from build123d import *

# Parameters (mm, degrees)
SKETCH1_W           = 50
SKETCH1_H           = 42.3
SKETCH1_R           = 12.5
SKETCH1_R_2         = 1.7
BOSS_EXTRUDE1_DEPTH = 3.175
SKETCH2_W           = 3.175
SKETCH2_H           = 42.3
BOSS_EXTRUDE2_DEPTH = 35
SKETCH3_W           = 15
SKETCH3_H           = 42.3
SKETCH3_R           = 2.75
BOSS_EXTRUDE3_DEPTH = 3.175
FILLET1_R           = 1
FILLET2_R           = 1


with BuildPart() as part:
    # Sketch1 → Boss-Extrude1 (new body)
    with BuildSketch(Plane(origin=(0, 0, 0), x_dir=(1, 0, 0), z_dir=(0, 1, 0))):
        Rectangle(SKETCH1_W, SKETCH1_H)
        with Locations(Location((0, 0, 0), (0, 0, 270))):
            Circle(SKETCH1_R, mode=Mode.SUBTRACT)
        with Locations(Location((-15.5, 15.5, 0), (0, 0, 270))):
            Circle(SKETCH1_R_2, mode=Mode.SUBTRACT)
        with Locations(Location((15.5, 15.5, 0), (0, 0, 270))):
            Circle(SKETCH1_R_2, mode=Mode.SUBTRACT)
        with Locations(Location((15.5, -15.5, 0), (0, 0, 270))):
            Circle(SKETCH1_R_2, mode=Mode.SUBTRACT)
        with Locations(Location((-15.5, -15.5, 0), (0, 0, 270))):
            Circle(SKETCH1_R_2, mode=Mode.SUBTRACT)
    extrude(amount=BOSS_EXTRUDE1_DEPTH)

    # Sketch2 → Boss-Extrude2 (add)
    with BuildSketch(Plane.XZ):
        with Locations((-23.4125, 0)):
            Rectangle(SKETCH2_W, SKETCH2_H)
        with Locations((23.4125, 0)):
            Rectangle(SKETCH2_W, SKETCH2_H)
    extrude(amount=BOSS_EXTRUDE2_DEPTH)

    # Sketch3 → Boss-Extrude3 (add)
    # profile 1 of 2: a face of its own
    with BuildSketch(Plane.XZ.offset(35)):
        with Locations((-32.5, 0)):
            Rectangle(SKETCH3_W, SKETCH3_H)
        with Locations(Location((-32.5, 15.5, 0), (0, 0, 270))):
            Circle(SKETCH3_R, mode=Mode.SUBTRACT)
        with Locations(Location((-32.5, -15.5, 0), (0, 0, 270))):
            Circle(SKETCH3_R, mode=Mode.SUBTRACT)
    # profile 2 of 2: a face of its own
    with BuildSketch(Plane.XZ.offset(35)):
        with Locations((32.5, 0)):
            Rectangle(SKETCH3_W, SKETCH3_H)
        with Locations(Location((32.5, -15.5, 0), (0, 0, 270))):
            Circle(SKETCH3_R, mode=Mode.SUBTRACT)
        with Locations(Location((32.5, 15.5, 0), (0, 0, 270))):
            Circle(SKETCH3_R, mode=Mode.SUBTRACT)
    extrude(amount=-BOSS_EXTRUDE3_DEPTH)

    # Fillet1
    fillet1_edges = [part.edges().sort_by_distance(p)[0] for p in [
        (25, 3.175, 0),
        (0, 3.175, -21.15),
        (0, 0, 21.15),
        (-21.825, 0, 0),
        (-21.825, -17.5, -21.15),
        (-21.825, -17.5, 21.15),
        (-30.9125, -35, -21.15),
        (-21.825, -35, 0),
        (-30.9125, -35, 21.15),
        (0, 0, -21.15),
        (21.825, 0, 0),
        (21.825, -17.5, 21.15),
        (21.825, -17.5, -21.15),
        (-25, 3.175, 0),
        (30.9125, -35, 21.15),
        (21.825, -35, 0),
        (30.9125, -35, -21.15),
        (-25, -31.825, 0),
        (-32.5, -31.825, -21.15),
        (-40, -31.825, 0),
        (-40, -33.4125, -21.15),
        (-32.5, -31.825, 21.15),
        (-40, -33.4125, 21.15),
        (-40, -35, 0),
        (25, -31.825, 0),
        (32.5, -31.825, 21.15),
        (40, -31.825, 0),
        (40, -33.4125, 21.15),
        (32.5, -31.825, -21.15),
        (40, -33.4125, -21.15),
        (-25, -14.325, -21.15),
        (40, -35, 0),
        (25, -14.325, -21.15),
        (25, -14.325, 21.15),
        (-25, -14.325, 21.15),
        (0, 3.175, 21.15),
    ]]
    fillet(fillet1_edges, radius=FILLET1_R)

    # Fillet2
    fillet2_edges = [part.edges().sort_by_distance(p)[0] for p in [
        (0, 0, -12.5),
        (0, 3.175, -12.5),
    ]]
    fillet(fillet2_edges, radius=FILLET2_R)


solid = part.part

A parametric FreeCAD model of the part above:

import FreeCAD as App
import Part
import Sketcher


def edges_at(feature, points):
    """Names of the edges that pass closest to the given points."""
    edges = feature.Shape.Edges
    near = lambda p: min(range(len(edges)), key=lambda i: edges[i].distToShape(Part.Vertex(*p))[0])
    return sorted({f"Edge{near(p) + 1}" for p in points})


def add_polygon(sketch, points):
    """Adds a closed chain of lines whose ends are joined by coincident constraints."""
    first, n = sketch.GeometryCount, len(points)
    for a, b in zip(points, points[1:] + points[:1]):
        sketch.addGeometry(Part.LineSegment(App.Vector(*a, 0), App.Vector(*b, 0)), False)
    for i in range(n):
        sketch.addConstraint(Sketcher.Constraint("Coincident", first + i, 2, first + (i + 1) % n, 1))

doc = App.newDocument("Part")
params = doc.addObject("Spreadsheet::Sheet", "Params")
for row, (alias, value) in enumerate([
    ("sketch1_diameter", "25 mm"),
    ("sketch1_diameter2", "3.4 mm"),
    ("sketch1_width", "50 mm"),
    ("sketch1_height", "42.3 mm"),
    ("pad1_length", "3.175 mm"),
    ("sketch2_height", "42.3 mm"),
    ("pad2_length", "35 mm"),
    ("sketch3_diameter", "5.5 mm"),
    ("sketch3_width", "15 mm"),
    ("sketch3_height", "42.3 mm"),
    ("pad3_length", "3.175 mm"),
    ("fillet_radius", "1 mm"),
    ("fillet2_radius", "1 mm"),
], start=1):
    params.set(f"A{row}", alias)
    params.set(f"B{row}", "=" + value)
    params.setAlias(f"B{row}", alias)

body = doc.addObject("PartDesign::Body", "Body")

sketch1 = doc.addObject("Sketcher::SketchObject", "Sketch")
body.addObject(sketch1)
sketch1.AttachmentSupport = (doc.XZ_Plane, [""])
sketch1.MapMode = "FlatFace"
add_polygon(sketch1, [(-25, -21.15), (-25, 21.15), (25, 21.15), (25, -21.15)])
sketch1.addGeometry(Part.Circle(App.Vector(-15.5, 15.5, 0), App.Vector(0, 0, 1), 1.7), False)
sketch1.addGeometry(Part.Circle(App.Vector(15.5, 15.5, 0), App.Vector(0, 0, 1), 1.7), False)
sketch1.addGeometry(Part.Circle(App.Vector(-15.5, -15.5, 0), App.Vector(0, 0, 1), 1.7), False)
sketch1.addGeometry(Part.Circle(App.Vector(0, 0, 0), App.Vector(0, 0, 1), 12.5), False)
sketch1.addGeometry(Part.Circle(App.Vector(15.5, -15.5, 0), App.Vector(0, 0, 1), 1.7), False)
sketch1.addConstraint([
    Sketcher.Constraint("Vertical", 0),
    Sketcher.Constraint("Horizontal", 1),
    Sketcher.Constraint("Vertical", 2),
    Sketcher.Constraint("Horizontal", 3),
    Sketcher.Constraint("Coincident", 7, 3, -1, 1),
    Sketcher.Constraint("Equal", 4, 5),
    Sketcher.Constraint("Equal", 5, 6),
    Sketcher.Constraint("Equal", 6, 8),
    Sketcher.Constraint("Symmetric", 5, 3, 6, 3, -1, 1),
    Sketcher.Constraint("Symmetric", 4, 3, 8, 3, -1, 1),
    Sketcher.Constraint("Symmetric", 0, 2, 2, 2, -1, 1),
    Sketcher.Constraint("Symmetric", 4, 3, 5, 3, -2),
    Sketcher.Constraint("Diameter", 7, 25.0),
    Sketcher.Constraint("Diameter", 4, 3.4),
    Sketcher.Constraint("DistanceX", 1, 1, 1, 2, 50.0),
    Sketcher.Constraint("DistanceY", 0, 1, 0, 2, 42.3),
    Sketcher.Constraint("DistanceX", 4, 3, 5, 3, 31.0),
    Sketcher.Constraint("DistanceY", 6, 3, 4, 3, 31.0),
])
sketch1.setExpression("Constraints[16]", "Params.sketch1_diameter")
sketch1.setExpression("Constraints[17]", "Params.sketch1_diameter2")
sketch1.setExpression("Constraints[18]", "Params.sketch1_width")
sketch1.setExpression("Constraints[19]", "Params.sketch1_height")
pad1 = doc.addObject("PartDesign::Pad", "Pad")
body.addObject(pad1)
pad1.Profile = sketch1
pad1.setExpression("Length", "Params.pad1_length")
pad1.Reversed = True

sketch2 = doc.addObject("Sketcher::SketchObject", "Sketch001")
body.addObject(sketch2)
sketch2.AttachmentSupport = (doc.XZ_Plane, [""])
sketch2.MapMode = "FlatFace"
add_polygon(sketch2, [(-25, 21.15), (-25, -21.15), (-21.825, -21.15), (-21.825, 21.15)])
add_polygon(sketch2, [(21.825, 21.15), (21.825, -21.15), (25, -21.15), (25, 21.15)])
sketch2.addConstraint([
    Sketcher.Constraint("Vertical", 0),
    Sketcher.Constraint("Horizontal", 1),
    Sketcher.Constraint("Vertical", 2),
    Sketcher.Constraint("Horizontal", 3),
    Sketcher.Constraint("Vertical", 4),
    Sketcher.Constraint("Horizontal", 5),
    Sketcher.Constraint("Vertical", 6),
    Sketcher.Constraint("Horizontal", 7),
    Sketcher.Constraint("Symmetric", 2, 2, 4, 2, -1, 1),
    Sketcher.Constraint("Symmetric", 0, 2, 6, 2, -1, 1),
    Sketcher.Constraint("Horizontal", 1, 2, 4, 2),
    Sketcher.Constraint("DistanceY", 0, 2, 0, 1, 42.3),
    Sketcher.Constraint("DistanceX", 0, 2, -1, 1, 25.0),
    Sketcher.Constraint("DistanceX", 1, 1, 1, 2, 3.175),
])
sketch2.setExpression("Constraints[19]", "Params.sketch2_height")
pad2 = doc.addObject("PartDesign::Pad", "Pad001")
body.addObject(pad2)
pad2.Profile = sketch2
pad2.setExpression("Length", "Params.pad2_length")

sketch3 = doc.addObject("Sketcher::SketchObject", "Sketch002")
body.addObject(sketch3)
sketch3.AttachmentSupport = (doc.XZ_Plane, [""])
sketch3.MapMode = "FlatFace"
sketch3.AttachmentOffset = App.Placement(App.Vector(0, 0, 35), App.Rotation())
add_polygon(sketch3, [(-40, 21.15), (-40, -21.15), (-25, -21.15), (-25, 21.15)])
sketch3.addGeometry(Part.Circle(App.Vector(-32.5, -15.5, 0), App.Vector(0, 0, 1), 2.75), False)
sketch3.addGeometry(Part.Circle(App.Vector(-32.5, 15.5, 0), App.Vector(0, 0, 1), 2.75), False)
add_polygon(sketch3, [(25, 21.15), (25, -21.15), (40, -21.15), (40, 21.15)])
sketch3.addGeometry(Part.Circle(App.Vector(32.5, -15.5, 0), App.Vector(0, 0, 1), 2.75), False)
sketch3.addGeometry(Part.Circle(App.Vector(32.5, 15.5, 0), App.Vector(0, 0, 1), 2.75), False)
sketch3.addConstraint([
    Sketcher.Constraint("Vertical", 0),
    Sketcher.Constraint("Horizontal", 1),
    Sketcher.Constraint("Vertical", 2),
    Sketcher.Constraint("Horizontal", 3),
    Sketcher.Constraint("Vertical", 6),
    Sketcher.Constraint("Horizontal", 7),
    Sketcher.Constraint("Vertical", 8),
    Sketcher.Constraint("Horizontal", 9),
    Sketcher.Constraint("Equal", 4, 5),
    Sketcher.Constraint("Equal", 5, 10),
    Sketcher.Constraint("Equal", 10, 11),
    Sketcher.Constraint("Symmetric", 5, 3, 10, 3, -1, 1),
    Sketcher.Constraint("Symmetric", 4, 3, 11, 3, -1, 1),
    Sketcher.Constraint("Symmetric", 2, 2, 6, 2, -1, 1),
    Sketcher.Constraint("Symmetric", 0, 2, 8, 2, -1, 1),
    Sketcher.Constraint("Symmetric", 4, 3, 10, 3, -2),
    Sketcher.Constraint("Horizontal", 1, 2, 6, 2),
    Sketcher.Constraint("Diameter", 4, 5.5),
    Sketcher.Constraint("DistanceX", 1, 1, 1, 2, 15.0),
    Sketcher.Constraint("DistanceY", 0, 2, 0, 1, 42.3),
    Sketcher.Constraint("DistanceX", 0, 2, -1, 1, 40.0),
    Sketcher.Constraint("DistanceY", 4, 3, 5, 3, 31.0),
    Sketcher.Constraint("DistanceX", 4, 3, 10, 3, 65.0),
])
sketch3.setExpression("Constraints[25]", "Params.sketch3_diameter")
sketch3.setExpression("Constraints[26]", "Params.sketch3_width")
sketch3.setExpression("Constraints[27]", "Params.sketch3_height")
pad3 = doc.addObject("PartDesign::Pad", "Pad002")
body.addObject(pad3)
pad3.Profile = sketch3
pad3.setExpression("Length", "Params.pad3_length")
pad3.Reversed = True
doc.recompute()

fillet = doc.addObject("PartDesign::Fillet", "Fillet")
body.addObject(fillet)
fillet.Base = (pad3, edges_at(pad3, [
    (25, 3.175, 0),
    (0, 3.175, -21.15),
    (0, 0, 21.15),
    (-21.825, 0, 0),
    (-21.825, -17.5, -21.15),
    (-21.825, -17.5, 21.15),
    (-30.913, -35, -21.15),
    (-21.825, -35, 0),
    (-30.913, -35, 21.15),
    (0, 0, -21.15),
    (21.825, 0, 0),
    (21.825, -17.5, 21.15),
    (21.825, -17.5, -21.15),
    (-25, 3.175, 0),
    (30.913, -35, 21.15),
    (21.825, -35, 0),
    (30.913, -35, -21.15),
    (-25, -31.825, 0),
    (-32.5, -31.825, -21.15),
    (-40, -31.825, 0),
    (-40, -33.413, -21.15),
    (-32.5, -31.825, 21.15),
    (-40, -33.413, 21.15),
    (-40, -35, 0),
    (25, -31.825, 0),
    (32.5, -31.825, 21.15),
    (40, -31.825, 0),
    (40, -33.413, 21.15),
    (32.5, -31.825, -21.15),
    (40, -33.413, -21.15),
    (-25, -14.325, -21.15),
    (40, -35, 0),
    (25, -14.325, -21.15),
    (25, -14.325, 21.15),
    (-25, -14.325, 21.15),
    (0, 3.175, 21.15),
]))
fillet.setExpression("Radius", "Params.fillet_radius")
doc.recompute()

fillet2 = doc.addObject("PartDesign::Fillet", "Fillet001")
body.addObject(fillet2)
fillet2.Base = (fillet, edges_at(fillet, [(0, 0, -12.5), (0, 3.175, -12.5)]))
fillet2.setExpression("Radius", "Params.fillet2_radius")

doc.recompute()
